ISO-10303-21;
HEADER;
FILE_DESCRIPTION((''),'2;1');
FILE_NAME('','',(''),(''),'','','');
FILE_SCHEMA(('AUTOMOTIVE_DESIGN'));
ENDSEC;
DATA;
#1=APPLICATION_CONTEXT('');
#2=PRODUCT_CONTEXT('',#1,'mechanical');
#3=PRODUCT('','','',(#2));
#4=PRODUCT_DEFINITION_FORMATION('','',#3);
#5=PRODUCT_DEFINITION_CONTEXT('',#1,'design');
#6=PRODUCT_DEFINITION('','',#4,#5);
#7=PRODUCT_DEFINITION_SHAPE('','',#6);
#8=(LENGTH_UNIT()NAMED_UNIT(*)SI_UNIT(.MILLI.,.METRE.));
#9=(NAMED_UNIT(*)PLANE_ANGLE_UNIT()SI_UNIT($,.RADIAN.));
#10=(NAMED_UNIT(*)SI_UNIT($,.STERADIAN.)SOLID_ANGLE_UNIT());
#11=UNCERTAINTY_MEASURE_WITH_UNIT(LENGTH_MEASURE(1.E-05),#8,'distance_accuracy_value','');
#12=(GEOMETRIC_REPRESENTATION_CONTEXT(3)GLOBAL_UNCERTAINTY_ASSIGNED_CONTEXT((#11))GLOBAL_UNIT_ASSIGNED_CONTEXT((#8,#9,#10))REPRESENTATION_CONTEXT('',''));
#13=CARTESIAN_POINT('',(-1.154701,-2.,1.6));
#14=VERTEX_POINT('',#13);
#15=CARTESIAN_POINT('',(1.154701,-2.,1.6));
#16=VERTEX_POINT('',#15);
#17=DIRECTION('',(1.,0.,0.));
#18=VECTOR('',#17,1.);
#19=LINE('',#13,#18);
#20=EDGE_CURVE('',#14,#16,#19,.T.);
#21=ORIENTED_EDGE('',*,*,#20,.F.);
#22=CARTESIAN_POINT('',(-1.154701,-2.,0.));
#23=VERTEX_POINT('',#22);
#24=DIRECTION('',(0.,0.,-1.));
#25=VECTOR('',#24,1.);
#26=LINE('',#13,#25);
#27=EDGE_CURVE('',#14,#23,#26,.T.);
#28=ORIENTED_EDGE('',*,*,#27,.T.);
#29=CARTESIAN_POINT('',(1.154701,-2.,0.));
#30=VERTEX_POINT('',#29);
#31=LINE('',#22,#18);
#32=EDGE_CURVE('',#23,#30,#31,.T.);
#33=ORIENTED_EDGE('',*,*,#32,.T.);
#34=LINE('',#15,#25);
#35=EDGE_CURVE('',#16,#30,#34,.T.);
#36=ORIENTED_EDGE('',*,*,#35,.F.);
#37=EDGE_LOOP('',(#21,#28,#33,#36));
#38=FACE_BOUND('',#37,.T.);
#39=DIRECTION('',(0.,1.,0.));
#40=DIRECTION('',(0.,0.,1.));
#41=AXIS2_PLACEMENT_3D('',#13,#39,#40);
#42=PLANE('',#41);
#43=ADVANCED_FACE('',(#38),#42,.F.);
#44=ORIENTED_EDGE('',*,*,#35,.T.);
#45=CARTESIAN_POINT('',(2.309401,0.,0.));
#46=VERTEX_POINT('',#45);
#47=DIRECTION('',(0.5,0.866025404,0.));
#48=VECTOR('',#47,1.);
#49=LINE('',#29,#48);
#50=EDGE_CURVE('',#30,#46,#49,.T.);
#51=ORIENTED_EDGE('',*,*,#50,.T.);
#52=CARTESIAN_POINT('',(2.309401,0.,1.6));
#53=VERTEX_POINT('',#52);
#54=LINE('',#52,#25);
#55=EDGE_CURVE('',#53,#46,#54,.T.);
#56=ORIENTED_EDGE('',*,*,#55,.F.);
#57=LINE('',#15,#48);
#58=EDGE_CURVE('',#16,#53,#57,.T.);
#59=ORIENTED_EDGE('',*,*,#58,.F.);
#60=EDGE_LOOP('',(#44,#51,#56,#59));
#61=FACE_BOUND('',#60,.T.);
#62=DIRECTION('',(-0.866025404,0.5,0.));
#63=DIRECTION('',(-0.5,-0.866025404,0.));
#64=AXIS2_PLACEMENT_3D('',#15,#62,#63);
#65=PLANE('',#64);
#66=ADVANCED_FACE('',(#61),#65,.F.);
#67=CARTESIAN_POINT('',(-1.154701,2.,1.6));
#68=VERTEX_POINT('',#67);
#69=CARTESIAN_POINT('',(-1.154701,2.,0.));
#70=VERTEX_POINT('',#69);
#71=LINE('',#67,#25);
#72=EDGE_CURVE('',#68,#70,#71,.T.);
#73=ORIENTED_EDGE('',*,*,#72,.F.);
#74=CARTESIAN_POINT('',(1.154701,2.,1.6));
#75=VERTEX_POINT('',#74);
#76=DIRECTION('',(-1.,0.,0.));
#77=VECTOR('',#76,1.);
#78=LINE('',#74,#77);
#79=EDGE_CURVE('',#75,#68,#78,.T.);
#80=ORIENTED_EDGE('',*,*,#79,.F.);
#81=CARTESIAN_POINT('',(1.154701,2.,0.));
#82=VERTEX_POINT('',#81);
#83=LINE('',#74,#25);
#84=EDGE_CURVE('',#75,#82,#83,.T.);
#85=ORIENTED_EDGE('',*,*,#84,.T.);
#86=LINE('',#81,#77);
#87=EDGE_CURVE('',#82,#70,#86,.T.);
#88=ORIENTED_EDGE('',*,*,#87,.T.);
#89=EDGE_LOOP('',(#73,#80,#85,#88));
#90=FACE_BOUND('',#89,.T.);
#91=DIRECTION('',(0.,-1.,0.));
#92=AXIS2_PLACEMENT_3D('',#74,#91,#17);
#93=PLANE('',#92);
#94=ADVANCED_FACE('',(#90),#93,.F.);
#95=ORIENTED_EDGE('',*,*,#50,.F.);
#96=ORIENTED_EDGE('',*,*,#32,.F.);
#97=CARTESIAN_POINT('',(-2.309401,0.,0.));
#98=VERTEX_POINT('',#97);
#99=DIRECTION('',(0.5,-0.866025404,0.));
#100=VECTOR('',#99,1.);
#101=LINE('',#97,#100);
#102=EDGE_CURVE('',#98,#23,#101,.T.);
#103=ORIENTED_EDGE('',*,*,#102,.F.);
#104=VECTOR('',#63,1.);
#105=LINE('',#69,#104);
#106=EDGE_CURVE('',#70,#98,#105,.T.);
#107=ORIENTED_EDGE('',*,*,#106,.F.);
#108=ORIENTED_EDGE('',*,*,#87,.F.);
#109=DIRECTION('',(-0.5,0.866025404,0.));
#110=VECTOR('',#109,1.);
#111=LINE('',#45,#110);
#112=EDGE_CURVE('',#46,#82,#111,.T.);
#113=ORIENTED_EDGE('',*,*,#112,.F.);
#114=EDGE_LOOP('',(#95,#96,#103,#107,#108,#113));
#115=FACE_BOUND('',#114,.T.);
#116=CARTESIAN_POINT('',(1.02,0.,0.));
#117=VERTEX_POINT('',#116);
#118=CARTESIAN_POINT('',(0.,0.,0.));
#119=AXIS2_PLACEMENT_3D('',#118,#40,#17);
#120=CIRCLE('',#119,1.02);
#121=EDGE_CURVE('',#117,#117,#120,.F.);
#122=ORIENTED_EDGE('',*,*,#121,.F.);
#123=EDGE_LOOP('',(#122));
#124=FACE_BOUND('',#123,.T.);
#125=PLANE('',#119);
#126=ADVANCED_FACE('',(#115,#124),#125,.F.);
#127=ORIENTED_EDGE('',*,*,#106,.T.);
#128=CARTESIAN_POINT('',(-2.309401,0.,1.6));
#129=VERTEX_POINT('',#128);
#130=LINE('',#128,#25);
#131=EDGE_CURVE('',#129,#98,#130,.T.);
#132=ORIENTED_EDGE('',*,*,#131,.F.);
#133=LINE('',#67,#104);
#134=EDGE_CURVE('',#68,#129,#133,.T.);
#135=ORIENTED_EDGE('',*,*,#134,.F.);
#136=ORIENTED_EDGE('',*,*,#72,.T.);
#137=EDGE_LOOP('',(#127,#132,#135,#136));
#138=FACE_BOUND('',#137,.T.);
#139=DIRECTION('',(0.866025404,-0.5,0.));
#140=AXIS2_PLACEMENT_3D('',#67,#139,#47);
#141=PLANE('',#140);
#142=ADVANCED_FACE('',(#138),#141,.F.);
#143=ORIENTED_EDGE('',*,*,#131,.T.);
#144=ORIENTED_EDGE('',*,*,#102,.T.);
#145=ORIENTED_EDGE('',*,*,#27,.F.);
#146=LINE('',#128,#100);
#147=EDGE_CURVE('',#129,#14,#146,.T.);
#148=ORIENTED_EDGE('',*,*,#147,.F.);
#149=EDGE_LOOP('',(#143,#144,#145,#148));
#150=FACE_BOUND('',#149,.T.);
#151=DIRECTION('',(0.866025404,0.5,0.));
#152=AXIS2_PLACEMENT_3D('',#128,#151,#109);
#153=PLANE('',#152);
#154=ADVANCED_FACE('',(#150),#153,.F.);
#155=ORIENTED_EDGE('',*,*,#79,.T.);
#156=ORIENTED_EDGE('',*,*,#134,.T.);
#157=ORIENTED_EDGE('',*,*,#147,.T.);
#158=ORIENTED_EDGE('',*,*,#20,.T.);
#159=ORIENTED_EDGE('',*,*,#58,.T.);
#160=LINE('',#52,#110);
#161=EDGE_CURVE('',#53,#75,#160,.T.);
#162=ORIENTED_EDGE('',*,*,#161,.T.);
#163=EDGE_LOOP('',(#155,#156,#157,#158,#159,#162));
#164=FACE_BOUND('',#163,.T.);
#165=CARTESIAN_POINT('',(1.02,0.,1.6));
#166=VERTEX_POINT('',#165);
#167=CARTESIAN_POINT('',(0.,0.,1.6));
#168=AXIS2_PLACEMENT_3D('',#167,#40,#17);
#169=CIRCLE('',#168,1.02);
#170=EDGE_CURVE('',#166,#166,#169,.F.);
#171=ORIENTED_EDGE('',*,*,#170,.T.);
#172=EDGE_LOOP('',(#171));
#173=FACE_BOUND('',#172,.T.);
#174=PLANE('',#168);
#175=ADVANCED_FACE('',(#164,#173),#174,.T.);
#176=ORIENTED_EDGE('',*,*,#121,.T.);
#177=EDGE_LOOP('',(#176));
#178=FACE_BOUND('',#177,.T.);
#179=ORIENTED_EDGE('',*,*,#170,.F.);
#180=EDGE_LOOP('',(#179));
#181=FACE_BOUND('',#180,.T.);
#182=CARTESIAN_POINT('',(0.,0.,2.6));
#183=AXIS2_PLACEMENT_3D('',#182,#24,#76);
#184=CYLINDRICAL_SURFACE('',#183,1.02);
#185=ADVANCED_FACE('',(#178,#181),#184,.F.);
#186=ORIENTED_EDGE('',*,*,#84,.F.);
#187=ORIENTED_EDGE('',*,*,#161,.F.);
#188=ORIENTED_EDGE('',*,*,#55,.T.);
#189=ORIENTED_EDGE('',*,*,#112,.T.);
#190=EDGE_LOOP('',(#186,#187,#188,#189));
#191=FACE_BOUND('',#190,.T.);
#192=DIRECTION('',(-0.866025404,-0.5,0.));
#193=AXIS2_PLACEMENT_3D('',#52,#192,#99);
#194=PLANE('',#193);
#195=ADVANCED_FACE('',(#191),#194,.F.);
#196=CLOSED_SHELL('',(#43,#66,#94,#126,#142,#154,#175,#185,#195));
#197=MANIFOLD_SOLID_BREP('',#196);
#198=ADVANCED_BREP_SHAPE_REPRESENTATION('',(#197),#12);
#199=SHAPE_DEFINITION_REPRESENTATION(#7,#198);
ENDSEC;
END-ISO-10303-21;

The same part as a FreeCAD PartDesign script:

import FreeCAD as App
import Part
import Sketcher
Q = App.Units.Quantity

doc = App.newDocument("Part")
body = doc.addObject("PartDesign::Body", "Body")

# Sketch on XY plane
sketch1 = body.newObject("Sketcher::SketchObject", "Sketch")
sketch1.AttachmentSupport = (doc.getObject("XY_Plane"), [""])
sketch1.MapMode = "FlatFace"
sketch1.addGeometry([
    Part.LineSegment(App.Vector(2.3, 0, 0), App.Vector(1.2, 2, 0)),  # 0
    Part.LineSegment(App.Vector(1.2, 2, 0), App.Vector(-1.2, 2, 0)),  # 1
    Part.LineSegment(App.Vector(-1.2, 2, 0), App.Vector(-2.3, 0, 0)),  # 2
    Part.LineSegment(App.Vector(-2.3, 0, 0), App.Vector(-1.2, -2, 0)),  # 3
    Part.LineSegment(App.Vector(-1.2, -2, 0), App.Vector(1.2, -2, 0)),  # 4
    Part.LineSegment(App.Vector(1.2, -2, 0), App.Vector(2.3, 0, 0)),  # 5
], False)
sketch1.addConstraint([
    Sketcher.Constraint("Coincident", 0, 2, 1, 1),
    Sketcher.Constraint("Coincident", 1, 2, 2, 1),
    Sketcher.Constraint("Coincident", 2, 2, 3, 1),
    Sketcher.Constraint("Coincident", 3, 2, 4, 1),
    Sketcher.Constraint("Coincident", 4, 2, 5, 1),
    Sketcher.Constraint("Coincident", 5, 2, 0, 1),
    Sketcher.Constraint("Horizontal", 1),
    Sketcher.Constraint("Horizontal", 4),
    Sketcher.Constraint("Symmetric", 0, 2, 3, 2, -1, 1),
    Sketcher.Constraint("Symmetric", 2, 2, 5, 2, -1, 1),
    Sketcher.Constraint("PointOnObject", 2, 2, -1),
    Sketcher.Constraint("Parallel", 2, 5),
    Sketcher.Constraint("Vertical", 1, 2, 3, 2),
    Sketcher.Constraint("Angle", 0, Q("120 deg")),
    Sketcher.Constraint("DistanceY", -1, 1, 0, 2, Q("2 mm")),
    Sketcher.Constraint("DistanceX", 1, 2, 1, 1, Q("2.309401 mm")),
])
pad1 = body.newObject("PartDesign::Pad", "Pad")
pad1.Profile = sketch1
pad1.Length = 1.6

# Sketch on XY plane
sketch2 = body.newObject("Sketcher::SketchObject", "Sketch001")
sketch2.AttachmentSupport = (doc.getObject("XY_Plane"), [""])
sketch2.MapMode = "FlatFace"
sketch2.AttachmentOffset = App.Placement(App.Vector(0, 0, -1), App.Rotation())
sketch2.addGeometry(Part.Circle(App.Vector(0, 0, 0), App.Vector(0, 0, 1), 1), False)
sketch2.addConstraint([
    Sketcher.Constraint("Coincident", 0, 3, -1, 1),
    Sketcher.Constraint("Diameter", 0, Q("2.04 mm")),
])
pocket1 = body.newObject("PartDesign::Pocket", "Pocket")
pocket1.Profile = sketch2
pocket1.Length = 3.6
pocket1.Reversed = True

doc.recompute()
